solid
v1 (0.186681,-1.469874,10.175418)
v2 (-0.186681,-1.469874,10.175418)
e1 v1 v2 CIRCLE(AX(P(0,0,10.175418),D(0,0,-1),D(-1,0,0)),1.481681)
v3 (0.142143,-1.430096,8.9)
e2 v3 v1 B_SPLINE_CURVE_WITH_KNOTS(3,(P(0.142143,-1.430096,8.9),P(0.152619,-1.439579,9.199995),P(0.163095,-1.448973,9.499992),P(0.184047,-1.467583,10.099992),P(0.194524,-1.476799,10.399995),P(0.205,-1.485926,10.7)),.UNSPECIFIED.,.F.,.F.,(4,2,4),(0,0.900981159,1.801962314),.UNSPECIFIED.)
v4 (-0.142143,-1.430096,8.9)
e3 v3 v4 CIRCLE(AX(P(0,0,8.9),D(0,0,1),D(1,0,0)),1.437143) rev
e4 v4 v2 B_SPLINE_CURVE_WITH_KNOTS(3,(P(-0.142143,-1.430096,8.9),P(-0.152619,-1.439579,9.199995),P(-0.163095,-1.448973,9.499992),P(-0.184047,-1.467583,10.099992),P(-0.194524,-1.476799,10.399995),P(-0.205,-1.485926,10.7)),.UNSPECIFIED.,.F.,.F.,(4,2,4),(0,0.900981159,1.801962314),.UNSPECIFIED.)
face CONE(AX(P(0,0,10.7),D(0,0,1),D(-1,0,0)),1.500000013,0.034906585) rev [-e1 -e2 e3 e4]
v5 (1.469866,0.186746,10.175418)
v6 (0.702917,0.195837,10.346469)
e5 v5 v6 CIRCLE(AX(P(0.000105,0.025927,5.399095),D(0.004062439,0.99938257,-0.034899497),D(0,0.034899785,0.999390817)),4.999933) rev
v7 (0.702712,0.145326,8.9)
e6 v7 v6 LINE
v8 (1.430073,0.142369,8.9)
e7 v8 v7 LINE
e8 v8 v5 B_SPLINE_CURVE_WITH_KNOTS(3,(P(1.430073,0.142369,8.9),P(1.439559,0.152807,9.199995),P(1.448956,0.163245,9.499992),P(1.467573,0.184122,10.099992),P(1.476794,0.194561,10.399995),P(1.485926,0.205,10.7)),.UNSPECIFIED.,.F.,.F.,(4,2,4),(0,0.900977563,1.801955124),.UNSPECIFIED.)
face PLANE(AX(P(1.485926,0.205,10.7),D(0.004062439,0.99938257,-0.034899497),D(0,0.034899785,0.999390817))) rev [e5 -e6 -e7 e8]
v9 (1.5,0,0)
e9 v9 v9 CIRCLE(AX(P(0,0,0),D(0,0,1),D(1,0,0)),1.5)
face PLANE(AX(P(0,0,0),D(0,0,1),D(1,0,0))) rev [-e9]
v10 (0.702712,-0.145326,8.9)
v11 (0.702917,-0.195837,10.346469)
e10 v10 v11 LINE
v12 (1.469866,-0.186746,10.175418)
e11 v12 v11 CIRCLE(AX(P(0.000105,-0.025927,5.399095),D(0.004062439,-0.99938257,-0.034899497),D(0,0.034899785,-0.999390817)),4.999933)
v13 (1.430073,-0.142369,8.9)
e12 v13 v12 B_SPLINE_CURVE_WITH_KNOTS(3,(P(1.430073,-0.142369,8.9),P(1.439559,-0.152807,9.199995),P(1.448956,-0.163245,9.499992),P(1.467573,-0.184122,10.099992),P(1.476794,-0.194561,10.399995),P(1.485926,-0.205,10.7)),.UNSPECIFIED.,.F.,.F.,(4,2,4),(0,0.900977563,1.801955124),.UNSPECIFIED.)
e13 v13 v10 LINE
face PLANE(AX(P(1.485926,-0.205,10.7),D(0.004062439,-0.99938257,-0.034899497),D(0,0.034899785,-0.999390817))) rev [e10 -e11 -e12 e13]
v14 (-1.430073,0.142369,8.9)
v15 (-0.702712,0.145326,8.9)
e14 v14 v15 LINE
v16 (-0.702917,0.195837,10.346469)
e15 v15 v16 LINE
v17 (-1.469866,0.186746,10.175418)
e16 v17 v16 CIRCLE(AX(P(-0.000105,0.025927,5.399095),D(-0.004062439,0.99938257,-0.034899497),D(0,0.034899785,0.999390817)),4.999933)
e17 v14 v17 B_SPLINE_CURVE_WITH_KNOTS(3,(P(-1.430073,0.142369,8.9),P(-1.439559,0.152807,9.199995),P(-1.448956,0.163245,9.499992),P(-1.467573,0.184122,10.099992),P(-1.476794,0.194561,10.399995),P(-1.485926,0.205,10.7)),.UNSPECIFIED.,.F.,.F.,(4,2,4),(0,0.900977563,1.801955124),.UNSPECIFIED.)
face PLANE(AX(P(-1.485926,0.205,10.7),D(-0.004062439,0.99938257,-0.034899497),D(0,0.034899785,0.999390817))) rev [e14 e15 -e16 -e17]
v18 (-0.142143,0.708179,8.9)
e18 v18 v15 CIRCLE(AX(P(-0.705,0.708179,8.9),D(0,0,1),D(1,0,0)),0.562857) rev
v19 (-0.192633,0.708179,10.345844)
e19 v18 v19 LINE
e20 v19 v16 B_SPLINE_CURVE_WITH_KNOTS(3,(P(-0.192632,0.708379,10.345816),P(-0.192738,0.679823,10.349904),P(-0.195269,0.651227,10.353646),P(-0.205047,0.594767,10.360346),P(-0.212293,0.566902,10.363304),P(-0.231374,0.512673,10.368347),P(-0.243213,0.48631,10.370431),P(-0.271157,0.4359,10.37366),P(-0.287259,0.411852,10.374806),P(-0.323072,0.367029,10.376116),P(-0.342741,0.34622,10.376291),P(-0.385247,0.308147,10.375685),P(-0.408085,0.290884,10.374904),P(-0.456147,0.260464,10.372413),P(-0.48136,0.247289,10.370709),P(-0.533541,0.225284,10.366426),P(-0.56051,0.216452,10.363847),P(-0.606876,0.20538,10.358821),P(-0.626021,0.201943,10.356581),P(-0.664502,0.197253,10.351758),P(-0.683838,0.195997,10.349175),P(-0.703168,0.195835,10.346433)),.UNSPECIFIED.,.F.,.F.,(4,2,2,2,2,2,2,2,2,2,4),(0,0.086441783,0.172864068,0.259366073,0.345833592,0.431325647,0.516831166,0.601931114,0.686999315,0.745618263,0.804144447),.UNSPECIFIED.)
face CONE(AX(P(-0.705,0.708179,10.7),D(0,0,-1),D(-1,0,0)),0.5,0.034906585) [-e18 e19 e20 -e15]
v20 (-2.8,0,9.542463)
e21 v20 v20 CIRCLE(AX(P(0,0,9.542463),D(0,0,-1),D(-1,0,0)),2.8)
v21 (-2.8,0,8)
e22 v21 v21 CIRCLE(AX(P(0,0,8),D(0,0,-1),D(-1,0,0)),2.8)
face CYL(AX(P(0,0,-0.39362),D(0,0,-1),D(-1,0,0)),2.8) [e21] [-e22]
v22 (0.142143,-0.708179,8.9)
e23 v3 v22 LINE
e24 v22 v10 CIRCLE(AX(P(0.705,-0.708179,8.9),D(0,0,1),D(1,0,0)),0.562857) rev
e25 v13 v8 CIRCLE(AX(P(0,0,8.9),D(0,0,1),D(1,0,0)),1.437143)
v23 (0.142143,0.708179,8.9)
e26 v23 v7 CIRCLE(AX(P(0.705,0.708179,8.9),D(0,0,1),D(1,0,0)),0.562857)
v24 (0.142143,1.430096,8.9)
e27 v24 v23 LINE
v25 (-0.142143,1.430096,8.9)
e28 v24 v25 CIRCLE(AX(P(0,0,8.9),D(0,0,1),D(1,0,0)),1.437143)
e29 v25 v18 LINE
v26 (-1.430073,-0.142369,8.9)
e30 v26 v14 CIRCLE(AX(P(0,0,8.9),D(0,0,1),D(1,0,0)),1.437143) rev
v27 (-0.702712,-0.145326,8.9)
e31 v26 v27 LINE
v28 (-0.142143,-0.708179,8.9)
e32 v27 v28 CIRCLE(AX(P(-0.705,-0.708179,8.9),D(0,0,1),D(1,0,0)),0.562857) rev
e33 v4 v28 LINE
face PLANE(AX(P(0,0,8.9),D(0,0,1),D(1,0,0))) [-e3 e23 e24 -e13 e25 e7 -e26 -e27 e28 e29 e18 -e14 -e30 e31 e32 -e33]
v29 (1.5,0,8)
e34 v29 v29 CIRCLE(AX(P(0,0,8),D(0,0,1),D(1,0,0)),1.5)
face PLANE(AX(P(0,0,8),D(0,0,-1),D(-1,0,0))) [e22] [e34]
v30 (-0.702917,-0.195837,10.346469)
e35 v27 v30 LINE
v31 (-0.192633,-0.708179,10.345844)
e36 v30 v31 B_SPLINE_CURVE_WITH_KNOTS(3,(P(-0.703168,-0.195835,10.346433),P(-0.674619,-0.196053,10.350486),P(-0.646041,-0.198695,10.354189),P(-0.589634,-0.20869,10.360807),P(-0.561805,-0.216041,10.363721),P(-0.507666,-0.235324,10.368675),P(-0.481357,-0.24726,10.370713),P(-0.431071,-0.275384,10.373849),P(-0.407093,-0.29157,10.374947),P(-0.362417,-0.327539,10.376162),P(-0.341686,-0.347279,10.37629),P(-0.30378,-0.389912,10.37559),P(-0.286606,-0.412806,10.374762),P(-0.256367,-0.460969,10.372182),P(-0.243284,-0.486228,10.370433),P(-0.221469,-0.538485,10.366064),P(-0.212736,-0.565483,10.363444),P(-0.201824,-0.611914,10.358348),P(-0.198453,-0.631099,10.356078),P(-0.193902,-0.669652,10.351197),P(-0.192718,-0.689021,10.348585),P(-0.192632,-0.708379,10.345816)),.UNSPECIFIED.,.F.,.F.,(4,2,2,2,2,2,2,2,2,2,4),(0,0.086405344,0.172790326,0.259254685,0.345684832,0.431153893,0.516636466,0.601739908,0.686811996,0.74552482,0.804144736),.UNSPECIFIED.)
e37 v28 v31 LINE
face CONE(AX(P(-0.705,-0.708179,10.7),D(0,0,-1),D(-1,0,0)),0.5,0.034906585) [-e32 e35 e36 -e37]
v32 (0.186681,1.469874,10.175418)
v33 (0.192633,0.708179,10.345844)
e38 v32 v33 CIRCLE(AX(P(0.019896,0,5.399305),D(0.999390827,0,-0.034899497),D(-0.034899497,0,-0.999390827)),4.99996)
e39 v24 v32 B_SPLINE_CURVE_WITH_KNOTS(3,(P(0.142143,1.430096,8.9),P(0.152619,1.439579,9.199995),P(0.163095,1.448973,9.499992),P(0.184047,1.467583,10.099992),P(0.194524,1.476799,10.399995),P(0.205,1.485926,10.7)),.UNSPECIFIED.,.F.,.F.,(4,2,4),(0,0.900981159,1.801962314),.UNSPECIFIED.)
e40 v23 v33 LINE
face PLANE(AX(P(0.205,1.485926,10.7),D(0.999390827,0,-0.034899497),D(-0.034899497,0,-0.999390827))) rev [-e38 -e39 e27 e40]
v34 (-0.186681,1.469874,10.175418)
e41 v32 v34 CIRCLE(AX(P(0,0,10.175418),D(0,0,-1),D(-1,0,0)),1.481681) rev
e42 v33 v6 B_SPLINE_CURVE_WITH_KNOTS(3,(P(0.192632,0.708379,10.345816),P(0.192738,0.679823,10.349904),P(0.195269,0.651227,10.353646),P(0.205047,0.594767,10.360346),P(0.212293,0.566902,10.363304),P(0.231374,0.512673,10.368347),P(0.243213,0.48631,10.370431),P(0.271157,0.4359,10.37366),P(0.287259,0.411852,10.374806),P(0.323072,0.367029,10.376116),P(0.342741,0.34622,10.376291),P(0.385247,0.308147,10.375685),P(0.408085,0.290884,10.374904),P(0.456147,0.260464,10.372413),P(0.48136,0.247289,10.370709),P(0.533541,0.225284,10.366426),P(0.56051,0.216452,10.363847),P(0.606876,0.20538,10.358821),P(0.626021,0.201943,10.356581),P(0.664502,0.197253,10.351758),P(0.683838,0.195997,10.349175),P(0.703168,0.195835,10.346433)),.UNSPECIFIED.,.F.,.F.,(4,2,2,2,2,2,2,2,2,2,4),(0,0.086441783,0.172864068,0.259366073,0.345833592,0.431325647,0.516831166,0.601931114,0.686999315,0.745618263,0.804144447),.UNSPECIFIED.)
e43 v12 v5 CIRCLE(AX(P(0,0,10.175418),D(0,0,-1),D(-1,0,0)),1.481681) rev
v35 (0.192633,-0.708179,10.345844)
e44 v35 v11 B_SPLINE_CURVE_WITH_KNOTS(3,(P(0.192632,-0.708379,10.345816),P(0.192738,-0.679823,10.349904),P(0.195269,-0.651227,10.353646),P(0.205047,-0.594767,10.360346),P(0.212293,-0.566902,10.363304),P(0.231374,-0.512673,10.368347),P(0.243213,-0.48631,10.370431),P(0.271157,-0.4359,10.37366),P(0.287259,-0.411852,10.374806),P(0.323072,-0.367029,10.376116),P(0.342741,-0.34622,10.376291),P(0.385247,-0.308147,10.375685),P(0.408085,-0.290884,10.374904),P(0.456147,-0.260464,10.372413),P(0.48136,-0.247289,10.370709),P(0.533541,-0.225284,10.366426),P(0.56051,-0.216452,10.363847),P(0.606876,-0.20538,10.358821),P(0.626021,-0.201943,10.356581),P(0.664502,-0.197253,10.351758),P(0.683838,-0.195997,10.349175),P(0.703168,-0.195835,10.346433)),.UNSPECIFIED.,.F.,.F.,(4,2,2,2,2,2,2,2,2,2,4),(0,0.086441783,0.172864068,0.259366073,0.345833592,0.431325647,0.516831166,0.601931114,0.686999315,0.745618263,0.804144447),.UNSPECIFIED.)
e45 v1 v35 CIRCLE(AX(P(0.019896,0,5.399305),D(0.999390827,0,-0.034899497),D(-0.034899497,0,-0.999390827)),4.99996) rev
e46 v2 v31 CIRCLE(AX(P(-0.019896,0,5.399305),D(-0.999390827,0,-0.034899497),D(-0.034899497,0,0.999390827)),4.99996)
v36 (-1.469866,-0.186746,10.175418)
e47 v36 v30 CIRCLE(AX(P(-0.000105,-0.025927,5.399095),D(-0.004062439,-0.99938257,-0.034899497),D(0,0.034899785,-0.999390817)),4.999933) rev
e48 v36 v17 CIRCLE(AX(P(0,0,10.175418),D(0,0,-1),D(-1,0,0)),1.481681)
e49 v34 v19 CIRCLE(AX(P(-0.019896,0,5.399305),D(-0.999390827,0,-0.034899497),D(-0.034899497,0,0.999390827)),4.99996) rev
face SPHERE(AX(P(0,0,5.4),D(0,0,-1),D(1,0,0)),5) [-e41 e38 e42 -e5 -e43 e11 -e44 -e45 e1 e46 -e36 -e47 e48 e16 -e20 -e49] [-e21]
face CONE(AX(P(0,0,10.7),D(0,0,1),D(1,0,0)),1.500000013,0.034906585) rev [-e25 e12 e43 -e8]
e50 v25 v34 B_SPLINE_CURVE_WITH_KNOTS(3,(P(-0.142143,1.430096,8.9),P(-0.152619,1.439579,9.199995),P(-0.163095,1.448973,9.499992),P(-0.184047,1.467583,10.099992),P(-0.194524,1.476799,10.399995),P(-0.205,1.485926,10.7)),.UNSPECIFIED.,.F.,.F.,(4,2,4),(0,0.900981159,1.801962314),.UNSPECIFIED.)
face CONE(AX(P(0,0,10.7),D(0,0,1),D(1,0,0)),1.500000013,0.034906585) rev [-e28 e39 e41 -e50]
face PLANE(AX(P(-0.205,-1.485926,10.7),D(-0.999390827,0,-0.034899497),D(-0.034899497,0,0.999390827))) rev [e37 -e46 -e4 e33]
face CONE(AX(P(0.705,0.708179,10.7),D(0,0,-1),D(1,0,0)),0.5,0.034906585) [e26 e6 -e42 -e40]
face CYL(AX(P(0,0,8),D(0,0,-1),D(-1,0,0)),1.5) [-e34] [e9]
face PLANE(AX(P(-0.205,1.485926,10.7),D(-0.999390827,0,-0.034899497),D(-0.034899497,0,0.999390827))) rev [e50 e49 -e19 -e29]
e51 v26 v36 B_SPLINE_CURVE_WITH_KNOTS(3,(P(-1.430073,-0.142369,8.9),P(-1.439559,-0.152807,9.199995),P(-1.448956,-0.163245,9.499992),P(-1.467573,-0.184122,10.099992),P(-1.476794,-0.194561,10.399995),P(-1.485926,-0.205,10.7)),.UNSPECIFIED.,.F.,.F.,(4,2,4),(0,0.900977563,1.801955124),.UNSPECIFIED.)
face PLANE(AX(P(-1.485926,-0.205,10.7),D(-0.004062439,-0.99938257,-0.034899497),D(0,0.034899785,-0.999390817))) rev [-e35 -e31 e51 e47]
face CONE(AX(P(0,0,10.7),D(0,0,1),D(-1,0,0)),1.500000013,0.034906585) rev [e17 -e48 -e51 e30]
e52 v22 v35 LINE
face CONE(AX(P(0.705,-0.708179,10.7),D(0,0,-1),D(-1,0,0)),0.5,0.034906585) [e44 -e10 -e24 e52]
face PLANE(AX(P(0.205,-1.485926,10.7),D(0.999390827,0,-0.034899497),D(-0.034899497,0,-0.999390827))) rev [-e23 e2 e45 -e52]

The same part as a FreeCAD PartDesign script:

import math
import FreeCAD as App
import Part
import Sketcher

doc = App.newDocument("Part")
body = doc.addObject("PartDesign::Body", "Body")

sketch1 = body.newObject("Sketcher::SketchObject", "Sketch")
sketch1.AttachmentSupport = (doc.getObject("XY_Plane"), [""])
sketch1.MapMode = "FlatFace"
sketch1.addGeometry(Part.Circle(App.Vector(0, 0, 0), App.Vector(0, 0, 1), 1.5), False)
sketch1.addConstraint([
    Sketcher.Constraint("Coincident", 0, 3, -1, 1),
    Sketcher.Constraint("Diameter", 0, 3.0),
])
pad1 = body.newObject("PartDesign::Pad", "Pad")
pad1.Profile = sketch1
pad1.Length = 8

sketch2 = body.newObject("Sketcher::SketchObject", "Sketch001")
sketch2.AttachmentSupport = (doc.getObject("XZ_Plane"), [""])
sketch2.MapMode = "FlatFace"
sketch2.addGeometry([
    Part.LineSegment(App.Vector(2.8, 8, 0), App.Vector(0, 8, 0)),
    Part.LineSegment(App.Vector(0, 8, 0), App.Vector(0, 10.4, 0)),
    Part.ArcOfCircle(Part.Circle(App.Vector(0, 5.4, 0), App.Vector(0, 0, 1), 5), math.radians(56), math.radians(90)),
    Part.LineSegment(App.Vector(2.8, 9.5, 0), App.Vector(2.8, 8, 0)),
], False)
sketch2.addConstraint([
    Sketcher.Constraint("Coincident", 0, 2, 1, 1),
    Sketcher.Constraint("Coincident", 1, 2, 2, 2),
    Sketcher.Constraint("Coincident", 2, 1, 3, 1),
    Sketcher.Constraint("Coincident", 3, 2, 0, 1),
    Sketcher.Constraint("Horizontal", 0),
    Sketcher.Constraint("Vertical", 1),
    Sketcher.Constraint("Vertical", 3),
    Sketcher.Constraint("PointOnObject", 2, 3, -2),
    Sketcher.Constraint("PointOnObject", 0, 2, -2),
    Sketcher.Constraint("Radius", 2, 5.0),
    Sketcher.Constraint("DistanceX", 0, 2, 0, 1, 2.8),
    Sketcher.Constraint("DistanceY", 1, 1, 1, 2, 2.4),
    Sketcher.Constraint("DistanceY", -1, 1, 0, 2, 8.0),
])
revolution = body.newObject("PartDesign::Revolution", "Revolution")
revolution.Profile = sketch2
revolution.ReferenceAxis = (sketch2, ["V_Axis"])
revolution.Angle = 360

sketch3 = body.newObject("Sketcher::SketchObject", "Sketch002")
sketch3.AttachmentSupport = (doc.getObject("XY_Plane"), [""])
sketch3.MapMode = "FlatFace"
sketch3.AttachmentOffset = App.Placement(App.Vector(0, 0, 10.7), App.Rotation())
sketch3.addGeometry([
    Part.ArcOfCircle(Part.Circle(App.Vector(0, 0, 0), App.Vector(0, 0, 1), 1.5), math.radians(82.14), math.radians(97.86)),
    Part.LineSegment(App.Vector(0.21, 1.49, 0), App.Vector(0.21, 0.71, 0)),
    Part.ArcOfCircle(Part.Circle(App.Vector(0.71, 0.71, 0), App.Vector(0, 0, 1), 0.5), math.radians(180), math.radians(270)),
    Part.LineSegment(App.Vector(0.7, 0.21, 0), App.Vector(1.49, 0.21, 0)),
    Part.ArcOfCircle(Part.Circle(App.Vector(0, 0, 0), App.Vector(0, 0, 1), 1.5), math.radians(-7.86), math.radians(7.86)),
    Part.LineSegment(App.Vector(1.49, -0.21, 0), App.Vector(0.7, -0.21, 0)),
    Part.ArcOfCircle(Part.Circle(App.Vector(0.71, -0.71, 0), App.Vector(0, 0, 1), 0.5), math.radians(90), math.radians(180)),
    Part.LineSegment(App.Vector(0.21, -0.71, 0), App.Vector(0.21, -1.49, 0)),
    Part.ArcOfCircle(Part.Circle(App.Vector(0, 0, 0), App.Vector(0, 0, 1), 1.5), math.radians(-97.86), math.radians(-82.14)),
    Part.LineSegment(App.Vector(-0.21, -1.49, 0), App.Vector(-0.21, -0.71, 0)),
    Part.ArcOfCircle(Part.Circle(App.Vector(-0.71, -0.71, 0), App.Vector(0, 0, 1), 0.5), math.radians(0), math.radians(90)),
    Part.LineSegment(App.Vector(-0.7, -0.21, 0), App.Vector(-1.49, -0.21, 0)),
    Part.ArcOfCircle(Part.Circle(App.Vector(0, 0, 0), App.Vector(0, 0, 1), 1.5), math.radians(172.14), math.radians(187.86)),
    Part.LineSegment(App.Vector(-1.49, 0.21, 0), App.Vector(-0.7, 0.21, 0)),
    Part.ArcOfCircle(Part.Circle(App.Vector(-0.71, 0.71, 0), App.Vector(0, 0, 1), 0.5), math.radians(-90), math.radians(0)),
    Part.LineSegment(App.Vector(-0.21, 0.71, 0), App.Vector(-0.21, 1.49, 0)),
], False)
sketch3.addConstraint([
    Sketcher.Constraint("Coincident", 0, 1, 1, 1),
    Sketcher.Constraint("Tangent", 1, 2, 2, 1),
    Sketcher.Constraint("Tangent", 2, 2, 3, 1),
    Sketcher.Constraint("Coincident", 3, 2, 4, 2),
    Sketcher.Constraint("Coincident", 4, 1, 5, 1),
    Sketcher.Constraint("Tangent", 5, 2, 6, 1),
    Sketcher.Constraint("Tangent", 6, 2, 7, 1),
    Sketcher.Constraint("Coincident", 7, 2, 8, 2),
    Sketcher.Constraint("Coincident", 8, 1, 9, 1),
    Sketcher.Constraint("Tangent", 9, 2, 10, 1),
    Sketcher.Constraint("Tangent", 10, 2, 11, 1),
    Sketcher.Constraint("Coincident", 11, 2, 12, 2),
    Sketcher.Constraint("Coincident", 12, 1, 13, 1),
    Sketcher.Constraint("Tangent", 13, 2, 14, 1),
    Sketcher.Constraint("Tangent", 14, 2, 15, 1),
    Sketcher.Constraint("Coincident", 15, 2, 0, 2),
    Sketcher.Constraint("Vertical", 1),
    Sketcher.Constraint("Vertical", 7),
    Sketcher.Constraint("Vertical", 9),
    Sketcher.Constraint("Vertical", 15),
    Sketcher.Constraint("Coincident", 0, 3, -1, 1),
    Sketcher.Constraint("Coincident", 4, 3, -1, 1),
    Sketcher.Constraint("Coincident", 8, 3, -1, 1),
    Sketcher.Constraint("Coincident", 12, 3, -1, 1),
    Sketcher.Constraint("Equal", 0, 4),
    Sketcher.Constraint("Equal", 2, 6),
    Sketcher.Constraint("Equal", 4, 8),
    Sketcher.Constraint("Equal", 6, 10),
    Sketcher.Constraint("Equal", 8, 12),
    Sketcher.Constraint("Equal", 10, 14),
    Sketcher.Constraint("Symmetric", 2, 3, 10, 3, -1, 1),
    Sketcher.Constraint("Symmetric", 6, 3, 14, 3, -1, 1),
    Sketcher.Constraint("Symmetric", 6, 3, 10, 3, -2),
    Sketcher.Constraint("Parallel", 3, 11),
    Sketcher.Constraint("Parallel", 5, 13),
    Sketcher.Constraint("Horizontal", 4, 1, 11, 2),
    Sketcher.Constraint("Radius", 0, 1.5),
    Sketcher.Constraint("Radius", 2, 0.5),
    Sketcher.Constraint("DistanceX", 10, 3, 6, 3, 1.41),
    Sketcher.Constraint("DistanceY", 4, 1, 3, 2, 0.41),
    Sketcher.Constraint("DistanceY", 1, 2, 1, 1, 0.777747),
])
pocket1 = body.newObject("PartDesign::Pocket", "Pocket")
pocket1.Profile = sketch3
pocket1.Length = 1.8
pocket1.TaperAngle = -2

doc.recompute()
